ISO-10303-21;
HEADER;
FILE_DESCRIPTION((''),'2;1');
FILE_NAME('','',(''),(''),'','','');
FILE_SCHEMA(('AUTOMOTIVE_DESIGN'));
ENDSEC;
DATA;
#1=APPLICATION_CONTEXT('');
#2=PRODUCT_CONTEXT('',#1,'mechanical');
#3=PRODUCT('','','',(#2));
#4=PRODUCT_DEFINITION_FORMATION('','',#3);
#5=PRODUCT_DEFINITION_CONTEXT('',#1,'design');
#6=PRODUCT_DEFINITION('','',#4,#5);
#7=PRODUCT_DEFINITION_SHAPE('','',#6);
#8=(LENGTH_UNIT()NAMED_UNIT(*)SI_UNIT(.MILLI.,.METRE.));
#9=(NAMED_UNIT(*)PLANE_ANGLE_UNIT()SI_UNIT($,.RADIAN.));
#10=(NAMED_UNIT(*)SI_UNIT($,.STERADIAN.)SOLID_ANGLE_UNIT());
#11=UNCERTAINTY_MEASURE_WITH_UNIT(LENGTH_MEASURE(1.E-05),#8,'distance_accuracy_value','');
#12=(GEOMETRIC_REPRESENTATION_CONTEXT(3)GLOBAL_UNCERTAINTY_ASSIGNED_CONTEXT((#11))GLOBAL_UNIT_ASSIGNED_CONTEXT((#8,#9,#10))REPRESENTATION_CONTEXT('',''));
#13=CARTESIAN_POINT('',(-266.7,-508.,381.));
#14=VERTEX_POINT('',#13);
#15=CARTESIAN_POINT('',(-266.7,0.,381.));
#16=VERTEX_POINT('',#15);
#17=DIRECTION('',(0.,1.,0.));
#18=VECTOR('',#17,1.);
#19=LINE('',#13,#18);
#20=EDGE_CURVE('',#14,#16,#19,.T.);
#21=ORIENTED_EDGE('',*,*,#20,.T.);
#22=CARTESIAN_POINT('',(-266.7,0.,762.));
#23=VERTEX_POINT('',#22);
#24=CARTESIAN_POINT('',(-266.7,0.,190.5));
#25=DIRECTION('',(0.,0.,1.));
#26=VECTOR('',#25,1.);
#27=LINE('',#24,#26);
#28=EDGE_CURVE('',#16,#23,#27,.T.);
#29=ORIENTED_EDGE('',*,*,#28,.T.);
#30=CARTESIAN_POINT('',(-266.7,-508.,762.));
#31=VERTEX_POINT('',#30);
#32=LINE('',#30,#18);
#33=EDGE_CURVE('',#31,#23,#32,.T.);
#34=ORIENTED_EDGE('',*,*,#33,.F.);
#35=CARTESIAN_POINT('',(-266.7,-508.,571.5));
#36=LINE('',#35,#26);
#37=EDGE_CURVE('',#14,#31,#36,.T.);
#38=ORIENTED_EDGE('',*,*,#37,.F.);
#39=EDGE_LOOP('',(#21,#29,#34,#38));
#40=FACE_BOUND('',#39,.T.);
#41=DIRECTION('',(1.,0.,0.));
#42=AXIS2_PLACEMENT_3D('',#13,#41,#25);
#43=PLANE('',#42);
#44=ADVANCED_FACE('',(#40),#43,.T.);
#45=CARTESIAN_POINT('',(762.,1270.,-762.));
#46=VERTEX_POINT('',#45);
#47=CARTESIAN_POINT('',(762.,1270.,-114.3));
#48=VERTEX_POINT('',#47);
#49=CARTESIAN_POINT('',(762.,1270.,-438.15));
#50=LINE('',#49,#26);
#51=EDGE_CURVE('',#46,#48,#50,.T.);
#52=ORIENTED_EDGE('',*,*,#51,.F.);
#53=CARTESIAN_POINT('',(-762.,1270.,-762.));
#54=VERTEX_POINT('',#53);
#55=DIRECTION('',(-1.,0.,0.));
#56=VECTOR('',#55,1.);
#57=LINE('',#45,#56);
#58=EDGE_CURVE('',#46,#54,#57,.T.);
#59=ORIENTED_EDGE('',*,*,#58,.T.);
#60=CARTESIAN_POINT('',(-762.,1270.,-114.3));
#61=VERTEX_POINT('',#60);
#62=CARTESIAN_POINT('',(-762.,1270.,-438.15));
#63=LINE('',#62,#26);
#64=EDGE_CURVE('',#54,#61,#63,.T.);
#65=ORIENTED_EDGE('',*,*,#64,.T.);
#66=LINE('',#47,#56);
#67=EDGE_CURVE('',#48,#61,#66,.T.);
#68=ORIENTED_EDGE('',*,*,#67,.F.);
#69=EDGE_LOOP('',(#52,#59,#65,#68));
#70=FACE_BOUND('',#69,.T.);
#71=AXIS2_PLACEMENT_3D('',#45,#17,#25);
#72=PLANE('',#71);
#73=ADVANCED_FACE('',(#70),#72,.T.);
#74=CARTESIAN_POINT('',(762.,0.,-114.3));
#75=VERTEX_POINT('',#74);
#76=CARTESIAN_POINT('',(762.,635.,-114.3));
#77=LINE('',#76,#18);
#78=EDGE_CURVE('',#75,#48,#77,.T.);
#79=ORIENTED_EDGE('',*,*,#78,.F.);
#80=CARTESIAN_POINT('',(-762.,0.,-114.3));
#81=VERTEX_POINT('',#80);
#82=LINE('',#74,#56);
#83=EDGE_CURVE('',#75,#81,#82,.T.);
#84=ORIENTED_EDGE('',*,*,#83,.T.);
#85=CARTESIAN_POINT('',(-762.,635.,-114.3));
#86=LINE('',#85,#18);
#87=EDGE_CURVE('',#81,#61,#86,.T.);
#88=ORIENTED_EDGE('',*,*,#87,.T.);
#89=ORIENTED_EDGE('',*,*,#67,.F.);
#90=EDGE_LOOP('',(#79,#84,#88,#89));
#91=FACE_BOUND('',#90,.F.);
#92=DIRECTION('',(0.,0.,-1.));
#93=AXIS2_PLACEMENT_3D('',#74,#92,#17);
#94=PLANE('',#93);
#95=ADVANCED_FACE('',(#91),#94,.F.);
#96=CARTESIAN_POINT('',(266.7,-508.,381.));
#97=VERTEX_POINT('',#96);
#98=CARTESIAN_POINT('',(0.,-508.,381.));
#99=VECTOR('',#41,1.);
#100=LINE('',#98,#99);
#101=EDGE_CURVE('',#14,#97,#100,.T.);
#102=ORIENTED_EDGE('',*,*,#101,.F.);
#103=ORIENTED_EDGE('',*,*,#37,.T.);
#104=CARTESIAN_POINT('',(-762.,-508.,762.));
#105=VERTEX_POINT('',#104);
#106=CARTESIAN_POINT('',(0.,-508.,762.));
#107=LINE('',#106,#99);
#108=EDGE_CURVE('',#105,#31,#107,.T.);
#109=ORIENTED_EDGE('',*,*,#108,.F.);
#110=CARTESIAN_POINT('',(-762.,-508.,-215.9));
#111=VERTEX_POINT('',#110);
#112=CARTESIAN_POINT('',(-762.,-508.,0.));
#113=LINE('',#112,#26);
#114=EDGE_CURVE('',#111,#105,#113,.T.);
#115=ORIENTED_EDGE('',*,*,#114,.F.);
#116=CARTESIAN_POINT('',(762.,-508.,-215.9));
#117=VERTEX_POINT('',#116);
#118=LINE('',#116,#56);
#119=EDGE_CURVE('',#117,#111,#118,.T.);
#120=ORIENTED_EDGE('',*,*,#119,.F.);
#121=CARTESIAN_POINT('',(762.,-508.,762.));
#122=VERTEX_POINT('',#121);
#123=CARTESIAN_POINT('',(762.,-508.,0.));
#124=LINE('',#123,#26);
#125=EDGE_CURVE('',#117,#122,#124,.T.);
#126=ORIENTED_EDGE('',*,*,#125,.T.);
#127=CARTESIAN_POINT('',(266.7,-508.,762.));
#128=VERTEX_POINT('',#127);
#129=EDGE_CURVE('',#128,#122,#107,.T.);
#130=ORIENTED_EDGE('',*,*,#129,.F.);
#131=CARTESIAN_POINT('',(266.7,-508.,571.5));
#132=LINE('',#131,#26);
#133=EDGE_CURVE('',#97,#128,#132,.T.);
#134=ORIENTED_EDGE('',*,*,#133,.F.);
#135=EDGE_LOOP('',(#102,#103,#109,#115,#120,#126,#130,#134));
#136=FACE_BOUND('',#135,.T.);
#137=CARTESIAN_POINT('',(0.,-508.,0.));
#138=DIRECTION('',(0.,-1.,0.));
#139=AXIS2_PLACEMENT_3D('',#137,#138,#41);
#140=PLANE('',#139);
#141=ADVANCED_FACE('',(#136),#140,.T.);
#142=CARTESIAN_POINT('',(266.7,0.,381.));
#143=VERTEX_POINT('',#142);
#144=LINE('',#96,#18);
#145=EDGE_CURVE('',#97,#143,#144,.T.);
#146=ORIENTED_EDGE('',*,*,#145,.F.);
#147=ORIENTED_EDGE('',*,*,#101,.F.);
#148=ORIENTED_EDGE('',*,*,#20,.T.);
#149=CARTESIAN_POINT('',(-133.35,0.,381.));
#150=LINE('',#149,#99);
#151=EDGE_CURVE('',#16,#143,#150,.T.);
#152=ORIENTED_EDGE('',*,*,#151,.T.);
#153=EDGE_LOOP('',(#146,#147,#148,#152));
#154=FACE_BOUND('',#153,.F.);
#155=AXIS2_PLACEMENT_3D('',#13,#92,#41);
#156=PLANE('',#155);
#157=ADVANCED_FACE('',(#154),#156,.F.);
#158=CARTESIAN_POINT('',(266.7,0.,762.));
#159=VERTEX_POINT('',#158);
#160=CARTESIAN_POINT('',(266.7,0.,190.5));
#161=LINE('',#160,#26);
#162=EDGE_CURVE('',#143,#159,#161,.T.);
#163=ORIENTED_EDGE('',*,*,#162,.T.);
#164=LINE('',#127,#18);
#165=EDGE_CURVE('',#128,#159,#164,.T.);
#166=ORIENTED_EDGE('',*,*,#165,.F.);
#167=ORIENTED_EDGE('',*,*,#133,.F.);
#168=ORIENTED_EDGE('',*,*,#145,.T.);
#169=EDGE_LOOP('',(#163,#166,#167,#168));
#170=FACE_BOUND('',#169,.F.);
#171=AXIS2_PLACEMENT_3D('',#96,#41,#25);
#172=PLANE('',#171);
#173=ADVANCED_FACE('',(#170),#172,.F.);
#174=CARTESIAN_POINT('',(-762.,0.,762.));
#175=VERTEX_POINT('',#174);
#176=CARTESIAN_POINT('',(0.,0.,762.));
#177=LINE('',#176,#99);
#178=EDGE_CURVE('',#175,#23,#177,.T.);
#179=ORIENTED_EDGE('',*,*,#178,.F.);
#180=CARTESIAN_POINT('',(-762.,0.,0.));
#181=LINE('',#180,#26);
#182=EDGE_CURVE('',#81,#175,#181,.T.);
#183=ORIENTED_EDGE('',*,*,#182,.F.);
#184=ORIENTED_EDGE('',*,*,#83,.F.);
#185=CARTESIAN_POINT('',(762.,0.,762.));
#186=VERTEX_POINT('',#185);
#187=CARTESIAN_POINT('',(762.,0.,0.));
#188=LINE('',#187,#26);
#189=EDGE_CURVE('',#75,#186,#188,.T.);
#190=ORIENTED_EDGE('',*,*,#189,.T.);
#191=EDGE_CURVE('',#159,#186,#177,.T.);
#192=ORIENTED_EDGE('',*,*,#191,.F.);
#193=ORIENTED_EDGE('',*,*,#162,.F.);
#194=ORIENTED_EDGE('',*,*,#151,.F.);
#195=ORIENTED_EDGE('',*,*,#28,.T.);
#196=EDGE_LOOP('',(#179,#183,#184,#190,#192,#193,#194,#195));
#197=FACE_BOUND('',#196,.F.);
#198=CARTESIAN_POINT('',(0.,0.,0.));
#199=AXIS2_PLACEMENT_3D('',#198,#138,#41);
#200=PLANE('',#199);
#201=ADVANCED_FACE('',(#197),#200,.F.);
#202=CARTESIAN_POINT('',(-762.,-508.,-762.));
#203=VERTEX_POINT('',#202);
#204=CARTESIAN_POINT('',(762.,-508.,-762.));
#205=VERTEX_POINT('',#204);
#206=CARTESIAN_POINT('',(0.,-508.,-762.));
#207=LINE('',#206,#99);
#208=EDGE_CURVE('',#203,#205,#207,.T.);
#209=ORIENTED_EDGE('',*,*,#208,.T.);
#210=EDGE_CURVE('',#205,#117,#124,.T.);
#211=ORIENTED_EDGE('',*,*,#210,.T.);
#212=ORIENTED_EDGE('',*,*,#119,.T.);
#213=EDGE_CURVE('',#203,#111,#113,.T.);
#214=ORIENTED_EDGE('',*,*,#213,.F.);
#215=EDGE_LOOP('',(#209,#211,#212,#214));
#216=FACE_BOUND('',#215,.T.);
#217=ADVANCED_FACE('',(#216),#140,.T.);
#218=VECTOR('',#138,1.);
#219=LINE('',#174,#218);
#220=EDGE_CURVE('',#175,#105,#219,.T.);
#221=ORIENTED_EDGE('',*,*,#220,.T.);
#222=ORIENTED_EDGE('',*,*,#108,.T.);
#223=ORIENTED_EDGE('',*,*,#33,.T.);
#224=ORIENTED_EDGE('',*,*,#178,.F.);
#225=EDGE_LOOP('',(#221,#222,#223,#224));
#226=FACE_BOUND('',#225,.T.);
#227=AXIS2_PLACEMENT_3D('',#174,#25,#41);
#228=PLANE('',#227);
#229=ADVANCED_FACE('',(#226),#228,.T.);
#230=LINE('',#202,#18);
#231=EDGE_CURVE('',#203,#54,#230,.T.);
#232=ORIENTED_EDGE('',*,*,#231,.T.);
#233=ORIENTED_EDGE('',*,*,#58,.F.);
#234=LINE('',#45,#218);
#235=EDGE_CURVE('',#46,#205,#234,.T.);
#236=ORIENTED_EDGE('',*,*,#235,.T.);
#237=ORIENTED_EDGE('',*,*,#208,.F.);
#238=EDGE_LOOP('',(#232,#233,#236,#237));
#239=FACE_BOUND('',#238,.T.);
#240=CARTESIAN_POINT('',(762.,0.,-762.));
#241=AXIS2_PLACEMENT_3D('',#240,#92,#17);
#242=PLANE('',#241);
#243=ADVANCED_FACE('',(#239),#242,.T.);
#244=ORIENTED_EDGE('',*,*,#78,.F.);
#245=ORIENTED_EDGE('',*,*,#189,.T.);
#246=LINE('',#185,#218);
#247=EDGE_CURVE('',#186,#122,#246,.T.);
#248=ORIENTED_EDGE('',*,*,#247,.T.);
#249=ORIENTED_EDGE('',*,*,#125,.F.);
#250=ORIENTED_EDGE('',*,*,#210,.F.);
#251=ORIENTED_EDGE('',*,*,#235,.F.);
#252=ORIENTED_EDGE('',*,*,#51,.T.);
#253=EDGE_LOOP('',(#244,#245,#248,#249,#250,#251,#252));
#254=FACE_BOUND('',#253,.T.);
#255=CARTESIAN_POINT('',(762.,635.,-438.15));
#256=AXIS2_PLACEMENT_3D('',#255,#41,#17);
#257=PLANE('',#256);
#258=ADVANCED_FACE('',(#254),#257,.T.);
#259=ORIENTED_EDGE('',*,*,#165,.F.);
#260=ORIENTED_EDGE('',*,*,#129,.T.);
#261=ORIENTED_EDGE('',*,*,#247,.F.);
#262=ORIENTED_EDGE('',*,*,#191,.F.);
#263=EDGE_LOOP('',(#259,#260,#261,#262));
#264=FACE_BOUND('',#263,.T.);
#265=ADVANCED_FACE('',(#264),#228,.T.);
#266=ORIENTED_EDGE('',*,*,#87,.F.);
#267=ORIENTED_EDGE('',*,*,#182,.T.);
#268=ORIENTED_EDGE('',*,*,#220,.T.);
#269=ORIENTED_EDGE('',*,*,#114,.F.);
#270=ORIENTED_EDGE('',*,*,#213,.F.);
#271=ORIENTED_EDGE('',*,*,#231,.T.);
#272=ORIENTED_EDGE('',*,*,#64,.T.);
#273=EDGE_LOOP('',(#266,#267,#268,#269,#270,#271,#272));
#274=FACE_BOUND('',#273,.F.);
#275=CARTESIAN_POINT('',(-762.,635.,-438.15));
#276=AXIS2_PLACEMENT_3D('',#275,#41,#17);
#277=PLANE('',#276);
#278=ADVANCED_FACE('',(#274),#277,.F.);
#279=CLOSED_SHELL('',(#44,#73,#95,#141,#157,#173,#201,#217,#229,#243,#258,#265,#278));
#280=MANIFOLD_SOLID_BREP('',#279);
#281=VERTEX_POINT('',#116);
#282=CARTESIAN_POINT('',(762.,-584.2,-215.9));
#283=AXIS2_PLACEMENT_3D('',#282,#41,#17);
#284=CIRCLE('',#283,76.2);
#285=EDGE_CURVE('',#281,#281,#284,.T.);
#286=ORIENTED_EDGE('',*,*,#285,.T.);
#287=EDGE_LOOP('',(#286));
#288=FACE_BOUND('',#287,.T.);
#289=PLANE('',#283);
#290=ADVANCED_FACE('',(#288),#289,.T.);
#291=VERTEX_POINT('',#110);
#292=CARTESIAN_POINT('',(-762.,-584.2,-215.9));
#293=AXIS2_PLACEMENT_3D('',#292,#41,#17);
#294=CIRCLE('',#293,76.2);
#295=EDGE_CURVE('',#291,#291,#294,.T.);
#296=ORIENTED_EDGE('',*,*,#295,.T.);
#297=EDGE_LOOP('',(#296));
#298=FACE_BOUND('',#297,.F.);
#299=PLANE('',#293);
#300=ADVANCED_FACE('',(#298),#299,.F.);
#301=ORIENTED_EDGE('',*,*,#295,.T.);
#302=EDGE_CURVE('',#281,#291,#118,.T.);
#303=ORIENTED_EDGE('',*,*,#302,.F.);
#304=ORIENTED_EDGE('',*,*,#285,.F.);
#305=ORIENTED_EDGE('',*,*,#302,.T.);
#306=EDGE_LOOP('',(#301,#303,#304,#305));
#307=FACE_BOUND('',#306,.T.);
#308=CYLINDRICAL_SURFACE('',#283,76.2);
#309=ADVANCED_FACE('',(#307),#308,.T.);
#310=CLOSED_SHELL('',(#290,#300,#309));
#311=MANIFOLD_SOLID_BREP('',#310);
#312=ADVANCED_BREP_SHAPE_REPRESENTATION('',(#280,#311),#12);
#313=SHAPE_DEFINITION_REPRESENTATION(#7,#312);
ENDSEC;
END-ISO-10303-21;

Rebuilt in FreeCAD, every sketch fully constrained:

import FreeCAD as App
import Part
import Sketcher
from FreeCAD import Vector
Q = App.Units.Quantity

doc = App.newDocument("Part")
body = doc.addObject("PartDesign::Body", "Body")
body.AllowCompound = True

sketch1 = body.newObject("Sketcher::SketchObject", "Sketch")
sketch1.AttachmentSupport = (doc.getObject("XZ_Plane"), [""])
sketch1.MapMode = "FlatFace"
sketch1.addGeometry(Part.LineSegment(Vector(-762, 762, 0), Vector(-762, -762, 0)), False)
sketch1.addGeometry(Part.LineSegment(Vector(-762, -762, 0), Vector(762, -762, 0)), False)
sketch1.addGeometry(Part.LineSegment(Vector(762, -762, 0), Vector(762, 762, 0)), False)
sketch1.addGeometry(Part.LineSegment(Vector(762, 762, 0), Vector(-762, 762, 0)), False)
sketch1.addConstraint(Sketcher.Constraint("Coincident", 0, 2, 1, 1))
sketch1.addConstraint(Sketcher.Constraint("Coincident", 1, 2, 2, 1))
sketch1.addConstraint(Sketcher.Constraint("Coincident", 2, 2, 3, 1))
sketch1.addConstraint(Sketcher.Constraint("Coincident", 3, 2, 0, 1))
sketch1.addConstraint(Sketcher.Constraint("Vertical", 0))
sketch1.addConstraint(Sketcher.Constraint("Horizontal", 1))
sketch1.addConstraint(Sketcher.Constraint("Vertical", 2))
sketch1.addConstraint(Sketcher.Constraint("Horizontal", 3))
sketch1.addConstraint(Sketcher.Constraint("Symmetric", 0, 2, 2, 2, -1, 1))
sketch1.addConstraint(Sketcher.Constraint("Equal", 3, 0))
sketch1.addConstraint(Sketcher.Constraint("DistanceX", 1, 1, 1, 2, Q("60 in")))
pad1 = body.newObject("PartDesign::Pad", "Pad")
pad1.Profile = sketch1
pad1.Length = Q("20 in")

sketch2 = body.newObject("Sketcher::SketchObject", "Sketch001")
sketch2.AttachmentSupport = (doc.getObject("XZ_Plane"), [""])
sketch2.MapMode = "FlatFace"
sketch2.AttachmentOffset = App.Placement(Vector(0, 0, 20 * 25.4), App.Rotation())
sketch2.addGeometry(Part.LineSegment(Vector(-267, 762, 0), Vector(-267, 381, 0)), False)
sketch2.addGeometry(Part.LineSegment(Vector(-267, 381, 0), Vector(267, 381, 0)), False)
sketch2.addGeometry(Part.LineSegment(Vector(267, 381, 0), Vector(267, 762, 0)), False)
sketch2.addGeometry(Part.LineSegment(Vector(267, 762, 0), Vector(-267, 762, 0)), False)
sketch2.addConstraint(Sketcher.Constraint("Coincident", 0, 2, 1, 1))
sketch2.addConstraint(Sketcher.Constraint("Coincident", 1, 2, 2, 1))
sketch2.addConstraint(Sketcher.Constraint("Coincident", 2, 2, 3, 1))
sketch2.addConstraint(Sketcher.Constraint("Coincident", 3, 2, 0, 1))
sketch2.addConstraint(Sketcher.Constraint("Vertical", 0))
sketch2.addConstraint(Sketcher.Constraint("Horizontal", 1))
sketch2.addConstraint(Sketcher.Constraint("Vertical", 2))
sketch2.addConstraint(Sketcher.Constraint("Horizontal", 3))
sketch2.addConstraint(Sketcher.Constraint("DistanceX", 1, 1, 1, 2, Q("21 in")))
sketch2.addConstraint(Sketcher.Constraint("DistanceY", 0, 2, 0, 1, Q("15 in")))
sketch2.addConstraint(Sketcher.Constraint("DistanceY", -1, 1, 0, 2, Q("15 in")))
sketch2.addConstraint(Sketcher.Constraint("DistanceX", 0, 2, -1, 1, Q("10.5 in")))
pocket1 = body.newObject("PartDesign::Pocket", "Pocket")
pocket1.Profile = sketch2
pocket1.Type = "ThroughAll"

sketch3 = body.newObject("Sketcher::SketchObject", "Sketch002")
sketch3.AttachmentSupport = (doc.getObject("YZ_Plane"), [""])
sketch3.MapMode = "FlatFace"
sketch3.AttachmentOffset = App.Placement(Vector(0, 0, 30 * 25.4), App.Rotation())
sketch3.addGeometry(Part.LineSegment(Vector(0, -114, 0), Vector(0, -762, 0)), False)
sketch3.addGeometry(Part.LineSegment(Vector(0, -762, 0), Vector(1270, -762, 0)), False)
sketch3.addGeometry(Part.LineSegment(Vector(1270, -762, 0), Vector(1270, -114, 0)), False)
sketch3.addGeometry(Part.LineSegment(Vector(1270, -114, 0), Vector(0, -114, 0)), False)
sketch3.addConstraint(Sketcher.Constraint("Coincident", 0, 2, 1, 1))
sketch3.addConstraint(Sketcher.Constraint("Coincident", 1, 2, 2, 1))
sketch3.addConstraint(Sketcher.Constraint("Coincident", 2, 2, 3, 1))
sketch3.addConstraint(Sketcher.Constraint("Coincident", 3, 2, 0, 1))
sketch3.addConstraint(Sketcher.Constraint("Vertical", 0))
sketch3.addConstraint(Sketcher.Constraint("Horizontal", 1))
sketch3.addConstraint(Sketcher.Constraint("Vertical", 2))
sketch3.addConstraint(Sketcher.Constraint("Horizontal", 3))
sketch3.addConstraint(Sketcher.Constraint("PointOnObject", 0, 2, -2))
sketch3.addConstraint(Sketcher.Constraint("DistanceX", 1, 1, 1, 2, Q("50 in")))
sketch3.addConstraint(Sketcher.Constraint("DistanceY", 0, 2, 0, 1, Q("25.5 in")))
sketch3.addConstraint(Sketcher.Constraint("DistanceY", 0, 2, -1, 1, Q("30 in")))
pad2 = body.newObject("PartDesign::Pad", "Pad001")
pad2.Profile = sketch3
pad2.Length = Q("60 in")
pad2.Reversed = True

sketch4 = body.newObject("Sketcher::SketchObject", "Sketch003")
sketch4.AttachmentSupport = (doc.getObject("YZ_Plane"), [""])
sketch4.MapMode = "FlatFace"
sketch4.AttachmentOffset = App.Placement(Vector(0, 0, 30 * 25.4), App.Rotation())
sketch4.addGeometry(Part.Circle(Vector(-584, -216, 0), Vector(0, 0, 1), 76), False)
sketch4.addConstraint(Sketcher.Constraint("Diameter", 0, Q("6 in")))
sketch4.addConstraint(Sketcher.Constraint("DistanceX", 0, 3, -1, 1, Q("23 in")))
sketch4.addConstraint(Sketcher.Constraint("DistanceY", 0, 3, -1, 1, Q("8.5 in")))
pad3 = body.newObject("PartDesign::Pad", "Pad002")
pad3.Profile = sketch4
pad3.Length = Q("60 in")
pad3.Reversed = True

doc.recompute()
